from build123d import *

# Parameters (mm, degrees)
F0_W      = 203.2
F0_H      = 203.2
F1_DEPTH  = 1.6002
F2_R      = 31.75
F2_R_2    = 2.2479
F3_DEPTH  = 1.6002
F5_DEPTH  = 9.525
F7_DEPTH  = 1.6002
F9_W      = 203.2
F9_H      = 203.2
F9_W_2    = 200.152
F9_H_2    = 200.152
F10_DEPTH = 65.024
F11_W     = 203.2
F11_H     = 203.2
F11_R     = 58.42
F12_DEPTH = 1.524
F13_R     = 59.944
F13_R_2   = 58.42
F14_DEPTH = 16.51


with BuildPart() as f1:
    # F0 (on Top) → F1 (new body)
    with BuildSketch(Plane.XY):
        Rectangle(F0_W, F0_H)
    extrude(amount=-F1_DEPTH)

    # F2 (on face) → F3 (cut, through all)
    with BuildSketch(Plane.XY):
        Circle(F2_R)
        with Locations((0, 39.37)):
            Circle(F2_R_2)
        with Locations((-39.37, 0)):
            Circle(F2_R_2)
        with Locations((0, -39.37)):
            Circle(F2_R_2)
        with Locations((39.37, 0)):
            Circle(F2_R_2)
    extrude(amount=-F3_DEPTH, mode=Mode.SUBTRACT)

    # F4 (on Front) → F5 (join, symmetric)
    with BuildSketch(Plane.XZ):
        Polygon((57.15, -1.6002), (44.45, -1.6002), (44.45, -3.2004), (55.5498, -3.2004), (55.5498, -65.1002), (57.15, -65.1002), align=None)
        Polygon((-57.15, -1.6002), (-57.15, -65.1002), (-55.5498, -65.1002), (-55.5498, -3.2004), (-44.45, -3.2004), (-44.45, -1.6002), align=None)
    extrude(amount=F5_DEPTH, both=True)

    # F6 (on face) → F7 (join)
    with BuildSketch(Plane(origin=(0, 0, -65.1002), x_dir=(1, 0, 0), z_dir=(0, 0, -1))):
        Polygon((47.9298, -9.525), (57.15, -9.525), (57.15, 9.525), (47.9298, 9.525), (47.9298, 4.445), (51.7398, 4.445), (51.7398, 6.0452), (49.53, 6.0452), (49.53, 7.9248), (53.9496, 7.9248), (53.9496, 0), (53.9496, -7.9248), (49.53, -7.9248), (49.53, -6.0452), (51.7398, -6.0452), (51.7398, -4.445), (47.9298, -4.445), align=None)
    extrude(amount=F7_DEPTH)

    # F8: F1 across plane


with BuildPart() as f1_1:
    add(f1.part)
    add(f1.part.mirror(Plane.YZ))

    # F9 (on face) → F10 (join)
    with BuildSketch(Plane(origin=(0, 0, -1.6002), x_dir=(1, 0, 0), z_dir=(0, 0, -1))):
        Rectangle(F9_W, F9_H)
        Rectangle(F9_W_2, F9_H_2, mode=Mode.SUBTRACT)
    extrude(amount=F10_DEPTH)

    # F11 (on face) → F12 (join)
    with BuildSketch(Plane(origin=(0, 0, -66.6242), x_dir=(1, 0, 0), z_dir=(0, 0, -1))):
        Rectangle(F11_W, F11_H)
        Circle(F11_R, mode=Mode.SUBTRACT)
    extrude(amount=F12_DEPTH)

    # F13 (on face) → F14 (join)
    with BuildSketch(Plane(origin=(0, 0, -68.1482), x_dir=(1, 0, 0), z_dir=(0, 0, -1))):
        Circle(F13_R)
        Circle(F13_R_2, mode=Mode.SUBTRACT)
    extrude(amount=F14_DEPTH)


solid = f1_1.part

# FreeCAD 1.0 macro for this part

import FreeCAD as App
import Part
import Sketcher
Q = App.Units.Quantity


def add_polygon(sketch, points):
    """Adds a closed chain of lines whose ends are joined by coincident constraints."""
    first, n = sketch.GeometryCount, len(points)
    for a, b in zip(points, points[1:] + points[:1]):
        sketch.addGeometry(Part.LineSegment(App.Vector(*a, 0), App.Vector(*b, 0)), False)
    for i in range(n):
        sketch.addConstraint(Sketcher.Constraint("Coincident", first + i, 2, first + (i + 1) % n, 1))

doc = App.newDocument("Part")
params = doc.addObject("Spreadsheet::Sheet", "Params")
for row, (alias, value) in enumerate([
    ("sketch1_width", "8 in"),
    ("pad1_length", "0.063 in"),
    ("sketch2_diameter", "2.5 in"),
    ("sketch2_diameter2", "0.177 in"),
    ("sketch3_width", "0.5 in"),
    ("sketch3_height", "2.5 in"),
    ("sketch3_width2", "0.437 in"),
    ("pad2_length", "0.75 in"),
    ("sketch4_height", "0.2 in"),
    ("sketch4_width", "0.15 in"),
    ("sketch4_height2", "0.75 in"),
    ("sketch4_width2", "0.363 in"),
    ("sketch4_width3", "0.174 in"),
    ("pad3_length", "0.063 in"),
    ("sketch5_width", "8 in"),
    ("sketch5_width2", "7.88 in"),
    ("pad4_length", "2.56 in"),
    ("sketch6_diameter", "4.6 in"),
    ("sketch6_width", "8 in"),
    ("pad5_length", "0.06 in"),
    ("sketch7_diameter", "4.6 in"),
    ("sketch7_diameter2", "4.72 in"),
    ("pad6_length", "0.65 in"),
], start=1):
    params.set(f"A{row}", alias)
    params.set(f"B{row}", "=" + value)
    params.setAlias(f"B{row}", alias)

body = doc.addObject("PartDesign::Body", "Body")

# Sketch on XY plane
sketch1 = body.newObject("Sketcher::SketchObject", "Sketch")
sketch1.AttachmentSupport = (doc.getObject("XY_Plane"), [""])
sketch1.MapMode = "FlatFace"
add_polygon(sketch1, [(-101.6, 101.6), (-101.6, -101.6), (101.6, -101.6), (101.6, 101.6)])  # lines 0-3
sketch1.addConstraint([
    Sketcher.Constraint("Vertical", 0),
    Sketcher.Constraint("Horizontal", 1),
    Sketcher.Constraint("Vertical", 2),
    Sketcher.Constraint("Horizontal", 3),
    Sketcher.Constraint("Symmetric", 0, 2, 2, 2, -1, 1),
    Sketcher.Constraint("Equal", 3, 0),
    Sketcher.Constraint("DistanceX", 1, 1, 1, 2, Q("8 in")),
])
sketch1.setExpression("Constraints[10]", "Params.sketch1_width")
pad1 = body.newObject("PartDesign::Pad", "Pad")
pad1.Profile = sketch1
pad1.setExpression("Length", "Params.pad1_length")
pad1.Reversed = True

# Sketch on XY plane
sketch2 = body.newObject("Sketcher::SketchObject", "Sketch001")
sketch2.AttachmentSupport = (doc.getObject("XY_Plane"), [""])
sketch2.MapMode = "FlatFace"
sketch2.addGeometry([
    Part.Circle(App.Vector(0, 0, 0), App.Vector(0, 0, 1), 31.75),  # 0
    Part.Circle(App.Vector(0, 39.37, 0), App.Vector(0, 0, 1), 2.2479),  # 1
    Part.Circle(App.Vector(-39.37, 0, 0), App.Vector(0, 0, 1), 2.2479),  # 2
    Part.Circle(App.Vector(0, -39.37, 0), App.Vector(0, 0, 1), 2.2479),  # 3
    Part.Circle(App.Vector(39.37, 0, 0), App.Vector(0, 0, 1), 2.2479),  # 4
], False)
sketch2.addConstraint([
    Sketcher.Constraint("Coincident", 0, 3, -1, 1),
    Sketcher.Constraint("Equal", 1, 2),
    Sketcher.Constraint("Equal", 2, 3),
    Sketcher.Constraint("Equal", 3, 4),
    Sketcher.Constraint("Symmetric", 1, 3, 3, 3, -1, 1),
    Sketcher.Constraint("Symmetric", 2, 3, 4, 3, -1, 1),
    Sketcher.Constraint("PointOnObject", 1, 3, -2),
    Sketcher.Constraint("PointOnObject", 2, 3, -1),
    Sketcher.Constraint("Diameter", 0, Q("2.5 in")),
    Sketcher.Constraint("Diameter", 1, Q("0.177 in")),
    Sketcher.Constraint("DistanceY", 3, 3, 1, 3, Q("3.1 in")),
    Sketcher.Constraint("DistanceX", 2, 3, 4, 3, Q("3.1 in")),
])
sketch2.setExpression("Constraints[8]", "Params.sketch2_diameter")
sketch2.setExpression("Constraints[9]", "Params.sketch2_diameter2")
pocket1 = body.newObject("PartDesign::Pocket", "Pocket")
pocket1.Profile = sketch2
pocket1.Type = "ThroughAll"

# Sketch on XZ plane
sketch3 = body.newObject("Sketcher::SketchObject", "Sketch002")
sketch3.AttachmentSupport = (doc.getObject("XZ_Plane"), [""])
sketch3.MapMode = "FlatFace"
add_polygon(sketch3, [(57.15, -1.6002), (44.45, -1.6002), (44.45, -3.2004), (55.5498, -3.2004), (55.5498, -65.1002), (57.15, -65.1002)])  # lines 0-5
add_polygon(sketch3, [(-57.15, -1.6002), (-57.15, -65.1002), (-55.5498, -65.1002), (-55.5498, -3.2004), (-44.45, -3.2004), (-44.45, -1.6002)])  # lines 6-11
sketch3.addConstraint([
    Sketcher.Constraint("Horizontal", 0),
    Sketcher.Constraint("Vertical", 1),
    Sketcher.Constraint("Horizontal", 2),
    Sketcher.Constraint("Vertical", 3),
    Sketcher.Constraint("Horizontal", 4),
    Sketcher.Constraint("Vertical", 5),
    Sketcher.Constraint("Vertical", 6),
    Sketcher.Constraint("Horizontal", 7),
    Sketcher.Constraint("Vertical", 8),
    Sketcher.Constraint("Horizontal", 9),
    Sketcher.Constraint("Vertical", 10),
    Sketcher.Constraint("Horizontal", 11),
    Sketcher.Constraint("Symmetric", 4, 2, 6, 2, -2),
    Sketcher.Constraint("Symmetric", 2, 2, 8, 2, -2),
    Sketcher.Constraint("Symmetric", 0, 2, 10, 2, -2),
    Sketcher.Constraint("Equal", 7, 1),
    Sketcher.Constraint("DistanceX", 0, 2, 0, 1, Q("0.5 in")),
    Sketcher.Constraint("DistanceY", 5, 1, 5, 2, Q("2.5 in")),
    Sketcher.Constraint("DistanceX", 6, 2, 1, 2, Q("4 in")),
    Sketcher.Constraint("DistanceX", 2, 1, 2, 2, Q("0.437 in")),
    Sketcher.Constraint("DistanceY", 0, 2, -1, 1, Q("0.063 in")),
])
sketch3.setExpression("Constraints[28]", "Params.sketch3_width")
sketch3.setExpression("Constraints[29]", "Params.sketch3_height")
sketch3.setExpression("Constraints[31]", "Params.sketch3_width2")
pad2 = body.newObject("PartDesign::Pad", "Pad001")
pad2.Profile = sketch3
pad2.setExpression("Length", "Params.pad2_length")
pad2.Midplane = True

# Sketch on XY plane
sketch4 = body.newObject("Sketcher::SketchObject", "Sketch003")
sketch4.AttachmentSupport = (doc.getObject("XY_Plane"), [""])
sketch4.MapMode = "FlatFace"
sketch4.AttachmentOffset = App.Placement(App.Vector(0, 0, -2.563 * 25.4), App.Rotation())
add_polygon(sketch4, [(47.9298, 9.525), (57.15, 9.525), (57.15, -9.525), (47.9298, -9.525), (47.9298, -4.445), (51.7398, -4.445), (51.7398, -6.0452), (49.53, -6.0452), (49.53, -7.9248), (53.9496, -7.9248), (53.9496, 7.9248), (49.53, 7.9248), (49.53, 6.0452), (51.7398, 6.0452), (51.7398, 4.445), (47.9298, 4.445)])  # lines 0-15
sketch4.addConstraint([
    Sketcher.Constraint("Horizontal", 0),
    Sketcher.Constraint("Vertical", 1),
    Sketcher.Constraint("Horizontal", 2),
    Sketcher.Constraint("Vertical", 3),
    Sketcher.Constraint("Horizontal", 4),
    Sketcher.Constraint("Vertical", 5),
    Sketcher.Constraint("Horizontal", 6),
    Sketcher.Constraint("Vertical", 7),
    Sketcher.Constraint("Horizontal", 8),
    Sketcher.Constraint("Vertical", 9),
    Sketcher.Constraint("Horizontal", 10),
    Sketcher.Constraint("Vertical", 11),
    Sketcher.Constraint("Horizontal", 12),
    Sketcher.Constraint("Vertical", 13),
    Sketcher.Constraint("Horizontal", 14),
    Sketcher.Constraint("Vertical", 15),
    Sketcher.Constraint("Symmetric", 7, 2, 10, 2, -1),
    Sketcher.Constraint("Symmetric", 5, 2, 12, 2, -1),
    Sketcher.Constraint("Symmetric", 3, 2, 14, 2, -1),
    Sketcher.Constraint("Equal", 3, 15),
    Sketcher.Constraint("DistanceY", 3, 1, 3, 2, Q("0.2 in")),
    Sketcher.Constraint("DistanceX", 4, 1, 4, 2, Q("0.15 in")),
    Sketcher.Constraint("DistanceY", 1, 2, 1, 1, Q("0.75 in")),
    Sketcher.Constraint("DistanceX", 6, 2, 1, 2, Q("0.3 in")),
    Sketcher.Constraint("DistanceX", 0, 1, 0, 2, Q("0.363 in")),
    Sketcher.Constraint("DistanceX", 8, 1, 8, 2, Q("0.174 in")),
    Sketcher.Constraint("DistanceY", 5, 2, 5, 1, Q("0.063 in")),
    Sketcher.Constraint("DistanceY", 7, 2, 7, 1, Q("0.074 in")),
    Sketcher.Constraint("DistanceX", -1, 1, 0, 2, Q("2.25 in")),
])
sketch4.setExpression("Constraints[36]", "Params.sketch4_height")
sketch4.setExpression("Constraints[37]", "Params.sketch4_width")
sketch4.setExpression("Constraints[38]", "Params.sketch4_height2")
sketch4.setExpression("Constraints[40]", "Params.sketch4_width2")
sketch4.setExpression("Constraints[41]", "Params.sketch4_width3")
pad3 = body.newObject("PartDesign::Pad", "Pad002")
pad3.Profile = sketch4
pad3.setExpression("Length", "Params.pad3_length")
pad3.Reversed = True
body2 = doc.addObject("PartDesign::Body", "Body001")
doc.recompute()

body2.BaseFeature = body
doc.recompute()

mirroring = doc.addObject("Part::Mirroring", "Mirroring")
mirroring.Source = body
mirroring.Base = App.Vector(0, 0, 0)
mirroring.Normal = App.Vector(1, 0, 0)
body3 = doc.addObject("PartDesign::Body", "Body002")
body3.BaseFeature = mirroring
boolean = body2.newObject("PartDesign::Boolean", "Boolean")
boolean.Type = "Fuse"
boolean.addObjects([body3])
doc.recompute()

# Sketch on XY plane
sketch5 = body2.newObject("Sketcher::SketchObject", "Sketch004")
sketch5.AttachmentSupport = (doc.getObject("XY_Plane001"), [""])
sketch5.MapMode = "FlatFace"
sketch5.AttachmentOffset = App.Placement(App.Vector(0, 0, -0.063 * 25.4), App.Rotation())
add_polygon(sketch5, [(-101.6, -101.6), (-101.6, 101.6), (101.6, 101.6), (101.6, -101.6)])  # lines 0-3
add_polygon(sketch5, [(100.076, 100.076), (-100.076, 100.076), (-100.076, -100.076), (100.076, -100.076)])  # lines 4-7
sketch5.addConstraint([
    Sketcher.Constraint("Vertical", 0),
    Sketcher.Constraint("Horizontal", 1),
    Sketcher.Constraint("Vertical", 2),
    Sketcher.Constraint("Horizontal", 3),
    Sketcher.Constraint("Horizontal", 4),
    Sketcher.Constraint("Vertical", 5),
    Sketcher.Constraint("Horizontal", 6),
    Sketcher.Constraint("Vertical", 7),
    Sketcher.Constraint("Symmetric", 0, 2, 2, 2, -1, 1),
    Sketcher.Constraint("Symmetric", 4, 2, 6, 2, -1, 1),
    Sketcher.Constraint("Equal", 3, 0),
    Sketcher.Constraint("Equal", 6, 5),
    Sketcher.Constraint("DistanceX", 1, 1, 1, 2, Q("8 in")),
    Sketcher.Constraint("DistanceX", 4, 2, 4, 1, Q("7.88 in")),
])
sketch5.setExpression("Constraints[20]", "Params.sketch5_width")
sketch5.setExpression("Constraints[21]", "Params.sketch5_width2")
pad4 = body2.newObject("PartDesign::Pad", "Pad003")
pad4.Profile = sketch5
pad4.setExpression("Length", "Params.pad4_length")
pad4.Reversed = True

# Sketch on XY plane
sketch6 = body2.newObject("Sketcher::SketchObject", "Sketch005")
sketch6.AttachmentSupport = (doc.getObject("XY_Plane001"), [""])
sketch6.MapMode = "FlatFace"
sketch6.AttachmentOffset = App.Placement(App.Vector(0, 0, -2.623 * 25.4), App.Rotation())
add_polygon(sketch6, [(-101.6, -101.6), (-101.6, 101.6), (101.6, 101.6), (101.6, -101.6)])  # lines 0-3
sketch6.addGeometry(Part.Circle(App.Vector(0, 0, 0), App.Vector(0, 0, 1), 58.42), False)  # 4
sketch6.addConstraint([
    Sketcher.Constraint("Vertical", 0),
    Sketcher.Constraint("Horizontal", 1),
    Sketcher.Constraint("Vertical", 2),
    Sketcher.Constraint("Horizontal", 3),
    Sketcher.Constraint("Coincident", 4, 3, -1, 1),
    Sketcher.Constraint("Symmetric", 0, 2, 2, 2, -1, 1),
    Sketcher.Constraint("Equal", 3, 0),
    Sketcher.Constraint("Diameter", 4, Q("4.6 in")),
    Sketcher.Constraint("DistanceX", 1, 1, 1, 2, Q("8 in")),
])
sketch6.setExpression("Constraints[11]", "Params.sketch6_diameter")
sketch6.setExpression("Constraints[12]", "Params.sketch6_width")
pad5 = body2.newObject("PartDesign::Pad", "Pad004")
pad5.Profile = sketch6
pad5.setExpression("Length", "Params.pad5_length")
pad5.Reversed = True

# Sketch on XY plane
sketch7 = body2.newObject("Sketcher::SketchObject", "Sketch006")
sketch7.AttachmentSupport = (doc.getObject("XY_Plane001"), [""])
sketch7.MapMode = "FlatFace"
sketch7.AttachmentOffset = App.Placement(App.Vector(0, 0, -2.683 * 25.4), App.Rotation())
sketch7.addGeometry([
    Part.Circle(App.Vector(0, 0, 0), App.Vector(0, 0, 1), 59.944),
    Part.Circle(App.Vector(0, 0, 0), App.Vector(0, 0, 1), 58.42),
], False)
sketch7.addConstraint([
    Sketcher.Constraint("Coincident", 0, 3, -1, 1),
    Sketcher.Constraint("Coincident", 1, 3, -1, 1),
    Sketcher.Constraint("Diameter", 1, Q("4.6 in")),
    Sketcher.Constraint("Diameter", 0, Q("4.72 in")),
])
sketch7.setExpression("Constraints[2]", "Params.sketch7_diameter")
sketch7.setExpression("Constraints[3]", "Params.sketch7_diameter2")
pad6 = body2.newObject("PartDesign::Pad", "Pad005")
pad6.Profile = sketch7
pad6.setExpression("Length", "Params.pad6_length")
pad6.Reversed = True
mirroring.Visibility = False

doc.recompute()
